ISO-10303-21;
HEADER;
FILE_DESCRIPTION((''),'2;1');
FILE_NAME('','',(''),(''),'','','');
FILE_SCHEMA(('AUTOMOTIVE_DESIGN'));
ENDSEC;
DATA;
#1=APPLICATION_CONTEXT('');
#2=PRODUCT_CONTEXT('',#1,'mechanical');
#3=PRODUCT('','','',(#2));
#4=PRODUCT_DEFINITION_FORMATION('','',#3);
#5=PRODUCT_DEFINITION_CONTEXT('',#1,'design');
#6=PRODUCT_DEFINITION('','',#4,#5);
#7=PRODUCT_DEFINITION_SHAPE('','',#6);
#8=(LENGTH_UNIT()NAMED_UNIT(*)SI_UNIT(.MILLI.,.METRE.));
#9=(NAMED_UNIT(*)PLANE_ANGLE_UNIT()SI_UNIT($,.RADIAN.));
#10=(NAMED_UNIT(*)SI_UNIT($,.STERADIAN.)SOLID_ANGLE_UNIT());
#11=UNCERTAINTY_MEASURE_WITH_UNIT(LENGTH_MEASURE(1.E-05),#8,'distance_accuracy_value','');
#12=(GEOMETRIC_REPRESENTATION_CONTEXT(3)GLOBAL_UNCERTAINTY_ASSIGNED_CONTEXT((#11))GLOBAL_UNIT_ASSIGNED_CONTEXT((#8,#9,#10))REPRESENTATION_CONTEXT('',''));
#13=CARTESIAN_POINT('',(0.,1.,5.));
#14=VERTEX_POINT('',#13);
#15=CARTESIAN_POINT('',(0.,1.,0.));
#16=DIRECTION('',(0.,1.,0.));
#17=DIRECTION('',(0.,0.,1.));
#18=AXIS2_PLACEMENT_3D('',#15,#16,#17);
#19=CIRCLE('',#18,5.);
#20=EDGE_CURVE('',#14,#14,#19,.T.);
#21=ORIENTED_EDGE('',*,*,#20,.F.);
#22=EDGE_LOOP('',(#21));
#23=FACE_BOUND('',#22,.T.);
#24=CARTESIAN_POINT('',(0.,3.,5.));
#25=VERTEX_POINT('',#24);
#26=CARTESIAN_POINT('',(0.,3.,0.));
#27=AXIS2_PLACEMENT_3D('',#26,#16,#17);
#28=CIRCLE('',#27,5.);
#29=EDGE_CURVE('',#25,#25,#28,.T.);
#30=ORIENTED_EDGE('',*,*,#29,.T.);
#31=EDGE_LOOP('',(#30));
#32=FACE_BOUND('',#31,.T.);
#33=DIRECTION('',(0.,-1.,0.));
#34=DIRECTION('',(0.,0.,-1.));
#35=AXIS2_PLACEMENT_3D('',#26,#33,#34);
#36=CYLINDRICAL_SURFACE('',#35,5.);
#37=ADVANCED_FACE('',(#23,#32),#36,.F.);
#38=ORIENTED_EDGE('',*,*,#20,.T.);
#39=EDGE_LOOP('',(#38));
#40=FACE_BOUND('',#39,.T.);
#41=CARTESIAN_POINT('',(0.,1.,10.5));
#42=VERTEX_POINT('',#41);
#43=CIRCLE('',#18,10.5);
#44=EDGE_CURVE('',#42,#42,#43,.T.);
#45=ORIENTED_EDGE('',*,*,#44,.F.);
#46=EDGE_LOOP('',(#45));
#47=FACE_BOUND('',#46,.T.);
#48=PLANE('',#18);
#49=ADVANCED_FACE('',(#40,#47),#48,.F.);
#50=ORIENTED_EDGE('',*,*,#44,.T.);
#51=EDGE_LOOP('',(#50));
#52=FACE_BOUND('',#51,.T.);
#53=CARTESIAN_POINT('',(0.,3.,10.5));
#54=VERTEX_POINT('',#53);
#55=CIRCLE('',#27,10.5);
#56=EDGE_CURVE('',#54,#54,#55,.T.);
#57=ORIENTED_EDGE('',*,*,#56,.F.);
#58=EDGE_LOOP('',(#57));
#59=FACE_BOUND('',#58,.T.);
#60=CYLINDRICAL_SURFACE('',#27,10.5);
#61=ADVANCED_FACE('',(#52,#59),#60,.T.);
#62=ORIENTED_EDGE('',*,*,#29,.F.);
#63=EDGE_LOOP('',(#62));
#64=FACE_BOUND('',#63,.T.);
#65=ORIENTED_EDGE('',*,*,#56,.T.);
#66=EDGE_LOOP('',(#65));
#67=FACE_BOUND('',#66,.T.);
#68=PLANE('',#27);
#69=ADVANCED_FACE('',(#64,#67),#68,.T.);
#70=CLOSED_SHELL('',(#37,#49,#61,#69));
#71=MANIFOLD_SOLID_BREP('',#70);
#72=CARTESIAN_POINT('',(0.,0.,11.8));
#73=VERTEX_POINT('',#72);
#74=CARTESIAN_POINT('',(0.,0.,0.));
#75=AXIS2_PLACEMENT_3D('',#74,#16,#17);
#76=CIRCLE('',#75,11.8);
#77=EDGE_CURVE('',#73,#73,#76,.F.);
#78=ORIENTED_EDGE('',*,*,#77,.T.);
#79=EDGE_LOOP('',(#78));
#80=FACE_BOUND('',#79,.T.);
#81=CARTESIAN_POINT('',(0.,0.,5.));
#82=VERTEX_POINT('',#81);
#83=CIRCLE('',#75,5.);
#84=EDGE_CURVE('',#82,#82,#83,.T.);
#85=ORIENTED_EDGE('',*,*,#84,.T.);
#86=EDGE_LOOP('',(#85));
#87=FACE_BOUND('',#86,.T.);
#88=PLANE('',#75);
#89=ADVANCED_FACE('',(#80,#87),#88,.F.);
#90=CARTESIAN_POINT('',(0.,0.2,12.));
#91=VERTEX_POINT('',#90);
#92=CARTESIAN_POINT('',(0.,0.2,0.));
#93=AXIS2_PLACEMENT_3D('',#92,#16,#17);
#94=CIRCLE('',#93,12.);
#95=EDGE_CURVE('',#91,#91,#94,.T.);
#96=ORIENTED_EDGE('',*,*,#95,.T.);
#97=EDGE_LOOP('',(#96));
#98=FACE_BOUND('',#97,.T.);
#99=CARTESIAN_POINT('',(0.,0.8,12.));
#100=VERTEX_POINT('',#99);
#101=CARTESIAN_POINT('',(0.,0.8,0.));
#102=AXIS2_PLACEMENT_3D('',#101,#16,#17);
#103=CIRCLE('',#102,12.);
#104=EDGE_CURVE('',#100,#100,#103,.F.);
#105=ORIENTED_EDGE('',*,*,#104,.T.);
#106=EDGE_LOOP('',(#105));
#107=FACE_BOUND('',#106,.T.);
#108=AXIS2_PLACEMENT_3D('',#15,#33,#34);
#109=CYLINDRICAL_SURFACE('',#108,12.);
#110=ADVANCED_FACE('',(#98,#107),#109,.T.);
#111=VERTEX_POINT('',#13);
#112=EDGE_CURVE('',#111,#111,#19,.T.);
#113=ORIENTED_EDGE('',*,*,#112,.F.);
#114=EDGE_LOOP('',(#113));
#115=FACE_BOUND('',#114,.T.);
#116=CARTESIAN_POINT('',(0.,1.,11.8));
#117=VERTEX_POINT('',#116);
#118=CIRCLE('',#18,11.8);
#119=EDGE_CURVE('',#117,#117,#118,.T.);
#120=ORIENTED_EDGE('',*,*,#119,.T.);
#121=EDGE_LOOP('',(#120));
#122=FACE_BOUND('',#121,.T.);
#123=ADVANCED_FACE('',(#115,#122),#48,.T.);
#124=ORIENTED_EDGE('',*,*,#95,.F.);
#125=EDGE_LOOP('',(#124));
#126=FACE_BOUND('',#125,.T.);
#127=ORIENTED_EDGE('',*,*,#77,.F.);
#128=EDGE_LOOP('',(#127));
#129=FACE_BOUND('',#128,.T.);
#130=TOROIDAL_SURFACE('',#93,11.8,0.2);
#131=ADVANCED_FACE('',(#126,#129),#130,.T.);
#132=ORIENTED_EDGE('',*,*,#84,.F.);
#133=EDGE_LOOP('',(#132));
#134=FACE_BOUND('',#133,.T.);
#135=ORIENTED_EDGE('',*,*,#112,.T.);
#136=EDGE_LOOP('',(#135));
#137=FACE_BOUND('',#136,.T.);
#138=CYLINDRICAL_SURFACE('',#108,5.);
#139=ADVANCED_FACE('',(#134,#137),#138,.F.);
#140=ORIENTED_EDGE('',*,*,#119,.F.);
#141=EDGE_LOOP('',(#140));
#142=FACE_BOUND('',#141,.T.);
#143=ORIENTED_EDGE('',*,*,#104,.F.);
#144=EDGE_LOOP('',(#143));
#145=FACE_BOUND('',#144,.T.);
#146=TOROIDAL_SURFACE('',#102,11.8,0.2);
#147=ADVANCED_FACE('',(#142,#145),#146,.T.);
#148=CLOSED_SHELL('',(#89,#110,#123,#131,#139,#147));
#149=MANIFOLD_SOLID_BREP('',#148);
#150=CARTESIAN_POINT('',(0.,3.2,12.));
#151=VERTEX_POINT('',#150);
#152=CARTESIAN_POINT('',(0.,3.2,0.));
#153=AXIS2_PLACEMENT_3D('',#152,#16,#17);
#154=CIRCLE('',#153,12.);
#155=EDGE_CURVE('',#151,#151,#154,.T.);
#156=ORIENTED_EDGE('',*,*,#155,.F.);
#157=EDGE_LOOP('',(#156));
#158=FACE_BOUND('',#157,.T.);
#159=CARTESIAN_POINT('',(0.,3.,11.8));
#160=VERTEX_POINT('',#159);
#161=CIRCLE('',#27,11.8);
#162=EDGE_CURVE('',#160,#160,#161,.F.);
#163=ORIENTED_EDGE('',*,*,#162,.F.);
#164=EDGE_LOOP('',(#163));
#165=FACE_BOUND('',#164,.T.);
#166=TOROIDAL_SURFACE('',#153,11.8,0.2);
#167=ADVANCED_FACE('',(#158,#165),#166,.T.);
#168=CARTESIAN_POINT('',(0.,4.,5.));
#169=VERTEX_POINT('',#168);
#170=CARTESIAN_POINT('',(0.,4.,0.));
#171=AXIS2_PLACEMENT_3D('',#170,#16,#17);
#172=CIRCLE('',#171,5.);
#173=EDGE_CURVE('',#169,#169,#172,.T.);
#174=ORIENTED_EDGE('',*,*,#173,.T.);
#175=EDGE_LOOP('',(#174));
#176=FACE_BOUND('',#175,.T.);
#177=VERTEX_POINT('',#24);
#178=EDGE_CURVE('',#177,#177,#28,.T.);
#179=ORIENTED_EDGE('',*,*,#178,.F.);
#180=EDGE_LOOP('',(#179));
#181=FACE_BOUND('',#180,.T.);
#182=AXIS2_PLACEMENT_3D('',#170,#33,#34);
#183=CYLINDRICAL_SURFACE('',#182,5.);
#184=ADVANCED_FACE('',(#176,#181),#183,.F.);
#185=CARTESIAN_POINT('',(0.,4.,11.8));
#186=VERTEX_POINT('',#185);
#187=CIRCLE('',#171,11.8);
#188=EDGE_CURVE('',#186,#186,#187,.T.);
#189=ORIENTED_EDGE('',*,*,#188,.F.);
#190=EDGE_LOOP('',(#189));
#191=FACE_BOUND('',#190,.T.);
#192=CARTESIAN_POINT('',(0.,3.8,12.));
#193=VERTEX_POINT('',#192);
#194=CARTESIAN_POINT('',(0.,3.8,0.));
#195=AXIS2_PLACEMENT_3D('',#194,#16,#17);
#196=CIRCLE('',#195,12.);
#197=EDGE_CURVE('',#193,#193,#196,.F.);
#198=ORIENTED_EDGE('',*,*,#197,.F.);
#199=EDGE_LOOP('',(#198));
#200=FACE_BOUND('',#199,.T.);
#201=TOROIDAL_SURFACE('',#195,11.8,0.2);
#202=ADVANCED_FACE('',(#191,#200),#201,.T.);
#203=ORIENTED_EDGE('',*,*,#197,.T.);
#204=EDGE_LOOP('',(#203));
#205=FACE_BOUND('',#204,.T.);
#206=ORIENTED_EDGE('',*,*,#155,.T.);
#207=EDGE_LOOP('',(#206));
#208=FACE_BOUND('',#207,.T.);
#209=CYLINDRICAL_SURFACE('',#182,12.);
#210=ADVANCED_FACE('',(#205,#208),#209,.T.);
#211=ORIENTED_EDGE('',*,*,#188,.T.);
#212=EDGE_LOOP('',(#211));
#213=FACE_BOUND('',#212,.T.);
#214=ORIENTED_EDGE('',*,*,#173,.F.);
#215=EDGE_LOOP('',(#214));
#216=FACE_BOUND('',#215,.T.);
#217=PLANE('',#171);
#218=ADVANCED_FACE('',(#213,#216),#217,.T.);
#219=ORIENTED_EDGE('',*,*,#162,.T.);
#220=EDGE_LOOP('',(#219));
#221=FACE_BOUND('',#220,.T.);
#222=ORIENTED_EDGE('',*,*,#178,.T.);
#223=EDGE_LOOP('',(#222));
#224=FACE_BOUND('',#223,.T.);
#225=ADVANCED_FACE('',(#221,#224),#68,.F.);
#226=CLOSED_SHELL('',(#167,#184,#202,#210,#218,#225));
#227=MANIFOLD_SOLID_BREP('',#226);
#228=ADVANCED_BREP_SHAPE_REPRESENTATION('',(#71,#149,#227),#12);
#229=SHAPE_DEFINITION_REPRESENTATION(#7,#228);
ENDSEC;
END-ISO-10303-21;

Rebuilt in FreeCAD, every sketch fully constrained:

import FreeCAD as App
import Part
import Sketcher

V = App.Vector


def edges_at(feature, points):
    """Names of the edges that pass closest to the given points."""
    edges = feature.Shape.Edges
    near = lambda p: min(range(len(edges)), key=lambda i: edges[i].distToShape(Part.Vertex(*p))[0])
    return sorted({f"Edge{near(p) + 1}" for p in points})

doc = App.newDocument("Part")
params = doc.addObject("Spreadsheet::Sheet", "Params")
for row, (alias, value) in enumerate([
    ("sketch1_diameter", "24 mm"),
    ("sketch1_diameter2", "10 mm"),
    ("pad1_length", "1 mm"),
    ("fillet_radius", "0.2 mm"),
    ("fillet2_radius", "0.2 mm"),
    ("sketch2_diameter", "24 mm"),
    ("sketch2_diameter2", "10 mm"),
    ("pad2_length", "2 mm"),
    ("sketch3_width", "2 mm"),
    ("sketch3_height", "3 mm"),
    ("groove_angle", "360 deg"),
    ("sketch4_diameter", "24 mm"),
    ("sketch4_diameter2", "10 mm"),
    ("pad3_length", "1 mm"),
    ("fillet3_radius", "0.2 mm"),
    ("fillet4_radius", "0.2 mm"),
], start=1):
    params.set(f"A{row}", alias)
    params.set(f"B{row}", "=" + value)
    params.setAlias(f"B{row}", alias)

body = doc.addObject("PartDesign::Body", "Body")

# Sketch on XZ plane
sketch1 = body.newObject("Sketcher::SketchObject", "Sketch")
sketch1.AttachmentSupport = (doc.getObject("XZ_Plane"), [""])
sketch1.MapMode = "FlatFace"
sketch1.addGeometry([
    Part.Circle(V(0, 0, 0), V(0, 0, 1), 12),
    Part.Circle(V(0, 0, 0), V(0, 0, 1), 5),
], False)
sketch1.addConstraint([
    Sketcher.Constraint("Coincident", 0, 3, -1, 1),
    Sketcher.Constraint("Coincident", 1, 3, -1, 1),
    Sketcher.Constraint("Diameter", 0, 24.0),
    Sketcher.Constraint("Diameter", 1, 10.0),
])
sketch1.setExpression("Constraints[2]", "Params.sketch1_diameter")
sketch1.setExpression("Constraints[3]", "Params.sketch1_diameter2")
pad1 = body.newObject("PartDesign::Pad", "Pad")
pad1.Profile = sketch1
pad1.setExpression("Length", "Params.pad1_length")
pad1.Reversed = True
doc.recompute()

fillet = body.newObject("PartDesign::Fillet", "Fillet")
fillet.Base = (pad1, edges_at(pad1, [(0, 1, -12)]))
fillet.setExpression("Radius", "Params.fillet_radius")
doc.recompute()

fillet2 = body.newObject("PartDesign::Fillet", "Fillet001")
fillet2.Base = (fillet, edges_at(fillet, [(0, 0, -12)]))
fillet2.setExpression("Radius", "Params.fillet2_radius")
body2 = doc.addObject("PartDesign::Body", "Body001")

# Sketch on XZ plane
sketch2 = body2.newObject("Sketcher::SketchObject", "Sketch001")
sketch2.AttachmentSupport = (doc.getObject("XZ_Plane001"), [""])
sketch2.MapMode = "FlatFace"
sketch2.AttachmentOffset = App.Placement(V(0, 0, -1), App.Rotation())
sketch2.addGeometry([
    Part.Circle(V(0, 0, 0), V(0, 0, 1), 12),
    Part.Circle(V(0, 0, 0), V(0, 0, 1), 5),
], False)
sketch2.addConstraint([
    Sketcher.Constraint("Coincident", 0, 3, -1, 1),
    Sketcher.Constraint("Coincident", 1, 3, -1, 1),
    Sketcher.Constraint("Diameter", 0, 24.0),
    Sketcher.Constraint("Diameter", 1, 10.0),
])
sketch2.setExpression("Constraints[2]", "Params.sketch2_diameter")
sketch2.setExpression("Constraints[3]", "Params.sketch2_diameter2")
pad2 = body2.newObject("PartDesign::Pad", "Pad001")
pad2.Profile = sketch2
pad2.setExpression("Length", "Params.pad2_length")
pad2.Reversed = True

# Sketch on YZ plane
sketch3 = body2.newObject("Sketcher::SketchObject", "Sketch002")
sketch3.AttachmentSupport = (doc.getObject("YZ_Plane001"), [""])
sketch3.MapMode = "FlatFace"
sketch3.addGeometry([
    Part.LineSegment(V(3, -10.5, 0), V(1, -10.5, 0)),
    Part.LineSegment(V(1, -10.5, 0), V(1, -13.5, 0)),
    Part.LineSegment(V(1, -13.5, 0), V(3, -13.5, 0)),
    Part.LineSegment(V(3, -13.5, 0), V(3, -10.5, 0)),
], False)
sketch3.addConstraint([
    Sketcher.Constraint("Coincident", 0, 2, 1, 1),
    Sketcher.Constraint("Coincident", 1, 2, 2, 1),
    Sketcher.Constraint("Coincident", 2, 2, 3, 1),
    Sketcher.Constraint("Coincident", 3, 2, 0, 1),
    Sketcher.Constraint("Horizontal", 0),
    Sketcher.Constraint("Vertical", 1),
    Sketcher.Constraint("Horizontal", 2),
    Sketcher.Constraint("Vertical", 3),
    Sketcher.Constraint("DistanceX", 0, 2, 0, 1, 2.0),
    Sketcher.Constraint("DistanceY", 1, 2, 1, 1, 3.0),
    Sketcher.Constraint("DistanceX", -1, 1, 0, 2, 1.0),
    Sketcher.Constraint("DistanceY", 0, 2, -1, 1, 10.5),
])
sketch3.setExpression("Constraints[8]", "Params.sketch3_width")
sketch3.setExpression("Constraints[9]", "Params.sketch3_height")
groove = body2.newObject("PartDesign::Groove", "Groove")
groove.Profile = sketch3
groove.ReferenceAxis = (sketch3, ["H_Axis"])
groove.setExpression("Angle", "Params.groove_angle")
body3 = doc.addObject("PartDesign::Body", "Body002")

# Sketch on XZ plane
sketch4 = body3.newObject("Sketcher::SketchObject", "Sketch003")
sketch4.AttachmentSupport = (doc.getObject("XZ_Plane002"), [""])
sketch4.MapMode = "FlatFace"
sketch4.AttachmentOffset = App.Placement(V(0, 0, -3), App.Rotation())
sketch4.addGeometry([
    Part.Circle(V(0, 0, 0), V(0, 0, 1), 12),
    Part.Circle(V(0, 0, 0), V(0, 0, 1), 5),
], False)
sketch4.addConstraint([
    Sketcher.Constraint("Coincident", 0, 3, -1, 1),
    Sketcher.Constraint("Coincident", 1, 3, -1, 1),
    Sketcher.Constraint("Diameter", 0, 24.0),
    Sketcher.Constraint("Diameter", 1, 10.0),
])
sketch4.setExpression("Constraints[2]", "Params.sketch4_diameter")
sketch4.setExpression("Constraints[3]", "Params.sketch4_diameter2")
pad3 = body3.newObject("PartDesign::Pad", "Pad002")
pad3.Profile = sketch4
pad3.setExpression("Length", "Params.pad3_length")
pad3.Reversed = True
doc.recompute()

fillet3 = body3.newObject("PartDesign::Fillet", "Fillet002")
fillet3.Base = (pad3, edges_at(pad3, [(0, 4, -12)]))
fillet3.setExpression("Radius", "Params.fillet3_radius")
doc.recompute()

fillet4 = body3.newObject("PartDesign::Fillet", "Fillet003")
fillet4.Base = (fillet3, edges_at(fillet3, [(0, 3, -12)]))
fillet4.setExpression("Radius", "Params.fillet4_radius")

doc.recompute()
